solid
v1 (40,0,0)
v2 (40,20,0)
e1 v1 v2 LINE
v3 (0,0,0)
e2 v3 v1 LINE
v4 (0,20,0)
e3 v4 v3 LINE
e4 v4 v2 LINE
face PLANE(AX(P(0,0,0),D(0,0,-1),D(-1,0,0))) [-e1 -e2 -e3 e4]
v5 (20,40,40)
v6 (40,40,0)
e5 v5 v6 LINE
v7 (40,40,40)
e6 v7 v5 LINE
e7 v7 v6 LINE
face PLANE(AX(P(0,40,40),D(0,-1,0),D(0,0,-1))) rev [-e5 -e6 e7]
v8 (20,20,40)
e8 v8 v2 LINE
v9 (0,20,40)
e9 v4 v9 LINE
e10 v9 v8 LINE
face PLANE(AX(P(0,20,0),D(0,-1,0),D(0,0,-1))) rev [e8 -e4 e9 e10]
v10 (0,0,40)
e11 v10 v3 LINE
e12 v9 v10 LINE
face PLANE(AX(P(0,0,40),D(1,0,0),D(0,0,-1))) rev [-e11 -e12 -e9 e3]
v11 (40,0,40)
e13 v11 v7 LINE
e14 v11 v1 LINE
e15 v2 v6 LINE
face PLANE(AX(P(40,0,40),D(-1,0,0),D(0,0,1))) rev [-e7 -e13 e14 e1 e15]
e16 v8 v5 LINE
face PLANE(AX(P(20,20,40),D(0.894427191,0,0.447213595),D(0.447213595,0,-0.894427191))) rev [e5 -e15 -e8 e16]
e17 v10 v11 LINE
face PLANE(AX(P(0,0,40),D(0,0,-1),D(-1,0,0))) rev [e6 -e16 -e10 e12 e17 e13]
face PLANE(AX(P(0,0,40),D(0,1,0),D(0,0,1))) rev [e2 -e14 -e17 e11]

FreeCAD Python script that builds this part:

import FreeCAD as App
import Part
import Sketcher
Q = App.Units.Quantity


def add_polygon(sketch, points):
    """Adds a closed chain of lines whose ends are joined by coincident constraints."""
    first, n = sketch.GeometryCount, len(points)
    for a, b in zip(points, points[1:] + points[:1]):
        sketch.addGeometry(Part.LineSegment(App.Vector(*a, 0), App.Vector(*b, 0)), False)
    for i in range(n):
        sketch.addConstraint(Sketcher.Constraint("Coincident", first + i, 2, first + (i + 1) % n, 1))

doc = App.newDocument("Part")
body = doc.addObject("PartDesign::Body", "Body")

# Sketch on XY plane
sketch1 = body.newObject("Sketcher::SketchObject", "Sketch")
sketch1.AttachmentSupport = (doc.getObject("XY_Plane"), [""])
sketch1.MapMode = "FlatFace"
add_polygon(sketch1, [(0, 40), (0, 0), (40, 0), (40, 40)])  # lines 0-3
sketch1.addConstraint(Sketcher.Constraint("Vertical", 0))
sketch1.addConstraint(Sketcher.Constraint("Horizontal", 1))
sketch1.addConstraint(Sketcher.Constraint("Vertical", 2))
sketch1.addConstraint(Sketcher.Constraint("Horizontal", 3))
sketch1.addConstraint(Sketcher.Constraint("Coincident", 0, 2, -1, 1))
sketch1.addConstraint(Sketcher.Constraint("Equal", 3, 0))
sketch1.addConstraint(Sketcher.Constraint("DistanceX", 1, 1, 1, 2, Q("40 mm")))
pad1 = body.newObject("PartDesign::Pad", "Pad")
pad1.Profile = sketch1
pad1.Length = 40

# Sketch on XY plane
sketch2 = body.newObject("Sketcher::SketchObject", "Sketch001")
sketch2.AttachmentSupport = (doc.getObject("XY_Plane"), [""])
sketch2.MapMode = "FlatFace"
sketch2.AttachmentOffset = App.Placement(App.Vector(0, 0, 40), App.Rotation())
add_polygon(sketch2, [(0, 40), (0, 20), (20, 20), (20, 40)])  # lines 0-3
sketch2.addConstraint(Sketcher.Constraint("Vertical", 0))
sketch2.addConstraint(Sketcher.Constraint("Horizontal", 1))
sketch2.addConstraint(Sketcher.Constraint("Vertical", 2))
sketch2.addConstraint(Sketcher.Constraint("Horizontal", 3))
sketch2.addConstraint(Sketcher.Constraint("PointOnObject", 0, 2, -2))
sketch2.addConstraint(Sketcher.Constraint("Equal", 3, 0))
sketch2.addConstraint(Sketcher.Constraint("DistanceX", 1, 1, 1, 2, Q("20 mm")))
sketch2.addConstraint(Sketcher.Constraint("DistanceY", -1, 1, 0, 2, Q("20 mm")))
pocket1 = body.newObject("PartDesign::Pocket", "Pocket")
pocket1.Profile = sketch2
pocket1.Length = 40

# Sketch on XZ plane
sketch3 = body.newObject("Sketcher::SketchObject", "Sketch002")
sketch3.AttachmentSupport = (doc.getObject("XZ_Plane"), [""])
sketch3.MapMode = "FlatFace"
sketch3.AttachmentOffset = App.Placement(App.Vector(0, 0, -40), App.Rotation())
add_polygon(sketch3, [(20, 40), (40, 0), (20, 0)])  # lines 0-2
sketch3.addConstraint(Sketcher.Constraint("Horizontal", 1))
sketch3.addConstraint(Sketcher.Constraint("Vertical", 2))
sketch3.addConstraint(Sketcher.Constraint("PointOnObject", 0, 2, -1))
sketch3.addConstraint(Sketcher.Constraint("DistanceX", 1, 2, 1, 1, Q("20 mm")))
sketch3.addConstraint(Sketcher.Constraint("DistanceY", 2, 1, 2, 2, Q("40 mm")))
sketch3.addConstraint(Sketcher.Constraint("DistanceX", -1, 1, 0, 2, Q("40 mm")))
pocket2 = body.newObject("PartDesign::Pocket", "Pocket001")
pocket2.Profile = sketch3
pocket2.Length = 20
pocket2.Reversed = True

doc.recompute()
